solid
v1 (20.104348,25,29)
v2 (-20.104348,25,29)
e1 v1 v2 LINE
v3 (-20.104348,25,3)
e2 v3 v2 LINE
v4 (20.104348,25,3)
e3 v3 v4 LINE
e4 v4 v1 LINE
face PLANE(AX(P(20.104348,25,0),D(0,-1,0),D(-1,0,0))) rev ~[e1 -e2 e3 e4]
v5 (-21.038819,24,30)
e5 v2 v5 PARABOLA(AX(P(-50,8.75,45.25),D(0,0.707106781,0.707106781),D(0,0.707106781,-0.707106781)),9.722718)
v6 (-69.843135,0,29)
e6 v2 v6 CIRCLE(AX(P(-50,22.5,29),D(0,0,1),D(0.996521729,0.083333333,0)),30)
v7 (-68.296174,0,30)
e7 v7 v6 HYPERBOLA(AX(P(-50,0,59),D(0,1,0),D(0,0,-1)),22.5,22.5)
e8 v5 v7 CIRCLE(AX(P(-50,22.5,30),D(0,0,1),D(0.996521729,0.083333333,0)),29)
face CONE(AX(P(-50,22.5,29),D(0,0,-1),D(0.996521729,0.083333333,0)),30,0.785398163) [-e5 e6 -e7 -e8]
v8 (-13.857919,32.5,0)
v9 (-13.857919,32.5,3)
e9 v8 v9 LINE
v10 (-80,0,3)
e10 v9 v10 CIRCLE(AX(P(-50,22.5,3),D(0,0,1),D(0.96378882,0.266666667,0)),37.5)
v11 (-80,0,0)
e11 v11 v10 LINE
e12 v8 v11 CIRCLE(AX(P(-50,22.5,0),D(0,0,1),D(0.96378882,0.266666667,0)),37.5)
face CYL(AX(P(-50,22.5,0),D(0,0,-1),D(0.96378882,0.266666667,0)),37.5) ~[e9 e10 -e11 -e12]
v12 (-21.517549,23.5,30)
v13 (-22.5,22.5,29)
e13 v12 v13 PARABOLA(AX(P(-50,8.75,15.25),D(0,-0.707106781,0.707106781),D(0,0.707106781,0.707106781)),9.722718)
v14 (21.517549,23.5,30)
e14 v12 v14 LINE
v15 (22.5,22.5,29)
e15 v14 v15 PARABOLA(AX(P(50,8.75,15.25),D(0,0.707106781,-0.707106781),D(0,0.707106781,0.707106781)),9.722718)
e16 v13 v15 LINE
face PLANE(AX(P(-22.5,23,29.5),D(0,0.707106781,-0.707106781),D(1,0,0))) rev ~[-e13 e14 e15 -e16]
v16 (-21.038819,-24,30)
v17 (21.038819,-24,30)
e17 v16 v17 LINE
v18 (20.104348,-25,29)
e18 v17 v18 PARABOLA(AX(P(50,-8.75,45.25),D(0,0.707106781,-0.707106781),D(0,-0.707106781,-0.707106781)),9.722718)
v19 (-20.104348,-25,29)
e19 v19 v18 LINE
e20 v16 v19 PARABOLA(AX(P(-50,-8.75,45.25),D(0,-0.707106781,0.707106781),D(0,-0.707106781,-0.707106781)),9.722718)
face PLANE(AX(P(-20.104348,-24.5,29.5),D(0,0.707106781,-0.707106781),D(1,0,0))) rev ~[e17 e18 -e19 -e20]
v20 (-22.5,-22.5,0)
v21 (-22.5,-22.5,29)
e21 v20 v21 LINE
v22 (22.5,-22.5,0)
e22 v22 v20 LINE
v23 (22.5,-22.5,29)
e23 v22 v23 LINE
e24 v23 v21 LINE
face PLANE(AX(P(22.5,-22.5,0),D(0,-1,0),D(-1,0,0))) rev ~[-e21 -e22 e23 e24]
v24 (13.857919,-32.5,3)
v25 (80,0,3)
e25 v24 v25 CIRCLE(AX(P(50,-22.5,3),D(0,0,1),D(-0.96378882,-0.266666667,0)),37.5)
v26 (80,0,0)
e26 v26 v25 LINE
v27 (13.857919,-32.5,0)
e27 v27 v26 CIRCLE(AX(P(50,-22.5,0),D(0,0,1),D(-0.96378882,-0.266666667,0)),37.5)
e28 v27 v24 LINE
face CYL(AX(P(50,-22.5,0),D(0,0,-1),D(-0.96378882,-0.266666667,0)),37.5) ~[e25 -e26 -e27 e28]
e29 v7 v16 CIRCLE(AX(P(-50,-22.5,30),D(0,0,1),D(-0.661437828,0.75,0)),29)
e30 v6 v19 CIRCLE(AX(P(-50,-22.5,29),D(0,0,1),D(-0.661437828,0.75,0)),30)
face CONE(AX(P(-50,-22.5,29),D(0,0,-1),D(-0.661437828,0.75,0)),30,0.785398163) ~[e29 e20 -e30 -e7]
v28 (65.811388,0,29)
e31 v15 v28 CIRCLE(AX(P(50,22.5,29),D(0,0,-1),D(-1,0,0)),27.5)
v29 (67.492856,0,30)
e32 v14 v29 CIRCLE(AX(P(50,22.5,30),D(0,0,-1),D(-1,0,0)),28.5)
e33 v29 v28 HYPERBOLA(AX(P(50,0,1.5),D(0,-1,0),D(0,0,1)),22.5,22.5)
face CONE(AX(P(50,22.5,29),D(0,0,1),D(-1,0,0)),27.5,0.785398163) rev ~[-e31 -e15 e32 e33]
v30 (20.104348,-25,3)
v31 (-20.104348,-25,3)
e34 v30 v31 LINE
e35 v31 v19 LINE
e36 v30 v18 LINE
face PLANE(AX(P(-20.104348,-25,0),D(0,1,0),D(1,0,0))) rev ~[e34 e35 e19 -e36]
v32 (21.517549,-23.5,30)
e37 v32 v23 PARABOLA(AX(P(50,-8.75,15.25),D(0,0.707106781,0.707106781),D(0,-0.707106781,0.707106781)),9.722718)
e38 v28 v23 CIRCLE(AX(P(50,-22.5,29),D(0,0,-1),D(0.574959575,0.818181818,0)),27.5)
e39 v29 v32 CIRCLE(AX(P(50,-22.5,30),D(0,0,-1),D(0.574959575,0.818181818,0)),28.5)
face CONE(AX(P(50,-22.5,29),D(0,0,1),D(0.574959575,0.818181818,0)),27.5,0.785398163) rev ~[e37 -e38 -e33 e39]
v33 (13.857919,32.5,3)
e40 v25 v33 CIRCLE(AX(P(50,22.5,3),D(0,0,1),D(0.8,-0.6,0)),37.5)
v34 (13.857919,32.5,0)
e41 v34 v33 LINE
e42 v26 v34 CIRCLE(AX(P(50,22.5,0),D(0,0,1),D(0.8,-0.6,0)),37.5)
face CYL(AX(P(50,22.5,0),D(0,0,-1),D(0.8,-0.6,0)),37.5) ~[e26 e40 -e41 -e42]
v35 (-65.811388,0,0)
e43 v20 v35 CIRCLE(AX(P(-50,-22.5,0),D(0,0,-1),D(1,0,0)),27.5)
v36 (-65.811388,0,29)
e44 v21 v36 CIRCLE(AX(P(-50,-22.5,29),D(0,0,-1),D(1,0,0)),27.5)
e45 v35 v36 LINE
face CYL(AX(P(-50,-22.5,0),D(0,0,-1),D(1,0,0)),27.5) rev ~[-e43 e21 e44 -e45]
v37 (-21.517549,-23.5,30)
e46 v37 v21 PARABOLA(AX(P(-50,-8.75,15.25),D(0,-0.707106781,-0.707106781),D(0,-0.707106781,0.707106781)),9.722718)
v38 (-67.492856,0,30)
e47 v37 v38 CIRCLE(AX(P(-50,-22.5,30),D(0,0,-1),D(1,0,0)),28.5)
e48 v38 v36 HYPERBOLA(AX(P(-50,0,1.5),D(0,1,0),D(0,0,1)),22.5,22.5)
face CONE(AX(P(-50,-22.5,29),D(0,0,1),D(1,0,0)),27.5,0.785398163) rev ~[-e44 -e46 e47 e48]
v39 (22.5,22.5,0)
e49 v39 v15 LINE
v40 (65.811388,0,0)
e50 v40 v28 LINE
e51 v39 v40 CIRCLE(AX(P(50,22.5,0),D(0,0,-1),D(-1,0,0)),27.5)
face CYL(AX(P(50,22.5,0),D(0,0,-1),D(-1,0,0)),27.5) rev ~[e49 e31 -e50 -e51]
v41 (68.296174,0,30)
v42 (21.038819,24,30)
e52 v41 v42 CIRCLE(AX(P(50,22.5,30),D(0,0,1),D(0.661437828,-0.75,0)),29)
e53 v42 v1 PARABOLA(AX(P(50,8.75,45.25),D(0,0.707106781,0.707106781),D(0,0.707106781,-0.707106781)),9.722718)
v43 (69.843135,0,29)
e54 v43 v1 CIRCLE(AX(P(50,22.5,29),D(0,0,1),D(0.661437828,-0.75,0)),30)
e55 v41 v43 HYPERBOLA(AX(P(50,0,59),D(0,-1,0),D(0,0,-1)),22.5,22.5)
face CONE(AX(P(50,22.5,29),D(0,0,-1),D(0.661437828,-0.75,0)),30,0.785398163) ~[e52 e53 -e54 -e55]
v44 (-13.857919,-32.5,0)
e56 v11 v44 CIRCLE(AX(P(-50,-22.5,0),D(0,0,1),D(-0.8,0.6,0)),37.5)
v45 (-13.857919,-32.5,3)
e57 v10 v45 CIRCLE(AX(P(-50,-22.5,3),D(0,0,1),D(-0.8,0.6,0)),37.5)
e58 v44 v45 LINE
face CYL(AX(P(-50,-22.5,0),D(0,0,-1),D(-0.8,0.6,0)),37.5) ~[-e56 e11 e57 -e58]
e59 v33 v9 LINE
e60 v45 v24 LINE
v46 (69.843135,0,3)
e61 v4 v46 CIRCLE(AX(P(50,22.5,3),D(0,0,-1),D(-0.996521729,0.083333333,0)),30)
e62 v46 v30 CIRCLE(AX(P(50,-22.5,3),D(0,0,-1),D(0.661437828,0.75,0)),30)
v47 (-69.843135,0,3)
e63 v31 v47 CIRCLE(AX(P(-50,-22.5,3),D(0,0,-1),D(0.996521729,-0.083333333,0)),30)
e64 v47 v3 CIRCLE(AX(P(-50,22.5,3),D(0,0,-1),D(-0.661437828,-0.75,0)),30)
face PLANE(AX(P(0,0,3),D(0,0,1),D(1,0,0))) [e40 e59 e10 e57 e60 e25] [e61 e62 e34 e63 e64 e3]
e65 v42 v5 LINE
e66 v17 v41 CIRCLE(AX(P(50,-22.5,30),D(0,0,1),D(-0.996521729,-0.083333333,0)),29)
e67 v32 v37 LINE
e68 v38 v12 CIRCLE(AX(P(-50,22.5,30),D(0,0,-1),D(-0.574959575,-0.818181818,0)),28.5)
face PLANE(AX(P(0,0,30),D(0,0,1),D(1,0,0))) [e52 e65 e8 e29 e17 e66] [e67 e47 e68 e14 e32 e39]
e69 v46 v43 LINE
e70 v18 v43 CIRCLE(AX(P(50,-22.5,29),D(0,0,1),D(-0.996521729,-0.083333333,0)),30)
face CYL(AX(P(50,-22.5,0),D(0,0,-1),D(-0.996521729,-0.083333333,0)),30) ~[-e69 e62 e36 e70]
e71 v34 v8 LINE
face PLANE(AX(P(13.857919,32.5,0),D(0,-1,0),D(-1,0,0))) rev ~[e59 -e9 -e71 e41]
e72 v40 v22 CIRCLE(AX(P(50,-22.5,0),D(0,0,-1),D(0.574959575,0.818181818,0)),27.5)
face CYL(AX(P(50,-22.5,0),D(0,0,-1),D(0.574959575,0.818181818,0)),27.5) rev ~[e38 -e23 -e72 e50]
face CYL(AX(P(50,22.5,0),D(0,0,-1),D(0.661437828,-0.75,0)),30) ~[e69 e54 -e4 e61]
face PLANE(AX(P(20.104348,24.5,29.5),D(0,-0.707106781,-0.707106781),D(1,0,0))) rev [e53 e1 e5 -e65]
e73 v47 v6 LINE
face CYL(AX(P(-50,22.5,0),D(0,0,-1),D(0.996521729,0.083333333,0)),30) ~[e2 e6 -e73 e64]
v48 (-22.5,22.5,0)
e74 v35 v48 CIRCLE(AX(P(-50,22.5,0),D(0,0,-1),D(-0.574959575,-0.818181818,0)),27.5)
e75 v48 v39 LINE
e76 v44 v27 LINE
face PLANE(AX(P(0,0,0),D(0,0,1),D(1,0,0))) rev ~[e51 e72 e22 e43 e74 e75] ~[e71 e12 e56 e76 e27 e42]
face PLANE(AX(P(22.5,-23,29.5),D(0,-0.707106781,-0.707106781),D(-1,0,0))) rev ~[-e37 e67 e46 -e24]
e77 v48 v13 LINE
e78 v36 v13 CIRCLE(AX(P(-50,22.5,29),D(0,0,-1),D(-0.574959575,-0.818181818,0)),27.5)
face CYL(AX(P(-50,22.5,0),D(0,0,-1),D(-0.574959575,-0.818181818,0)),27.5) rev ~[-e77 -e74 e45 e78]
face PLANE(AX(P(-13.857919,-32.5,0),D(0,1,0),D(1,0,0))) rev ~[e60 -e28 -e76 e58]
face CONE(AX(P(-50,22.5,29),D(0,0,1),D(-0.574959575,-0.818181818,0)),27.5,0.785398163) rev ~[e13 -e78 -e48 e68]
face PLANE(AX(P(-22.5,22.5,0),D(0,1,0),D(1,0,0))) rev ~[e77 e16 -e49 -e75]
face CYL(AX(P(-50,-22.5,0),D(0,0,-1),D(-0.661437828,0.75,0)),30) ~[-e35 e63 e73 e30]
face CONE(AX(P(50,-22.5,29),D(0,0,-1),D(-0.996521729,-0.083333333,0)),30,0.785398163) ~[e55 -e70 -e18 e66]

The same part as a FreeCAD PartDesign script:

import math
import FreeCAD as App
import Part
import Sketcher

V = App.Vector


def edges_at(feature, points):
    """Names of the edges that pass closest to the given points."""
    edges = feature.Shape.Edges
    near = lambda p: min(range(len(edges)), key=lambda i: edges[i].distToShape(Part.Vertex(*p))[0])
    return sorted({f"Edge{near(p) + 1}" for p in points})

doc = App.newDocument("Part")
body = doc.addObject("PartDesign::Body", "Body")

# Sketch on XY plane
sketch1 = body.newObject("Sketcher::SketchObject", "Sketch")
sketch1.AttachmentSupport = (doc.getObject("XY_Plane"), [""])
sketch1.MapMode = "FlatFace"
sketch1.addGeometry(Part.LineSegment(V(13.857919, 32.5, 0), V(-13.857919, 32.5, 0)), False)
sketch1.addGeometry(Part.ArcOfCircle(Part.Circle(V(-50, 22.5, 0), V(0, 0, 1), 37.5), math.radians(15.46601), math.radians(216.869898)), False)
sketch1.addGeometry(Part.ArcOfCircle(Part.Circle(V(-50, -22.5, 0), V(0, 0, 1), 37.5), math.radians(143.130102), math.radians(344.53399)), False)
sketch1.addGeometry(Part.LineSegment(V(-13.857919, -32.5, 0), V(13.857919, -32.5, 0)), False)
sketch1.addGeometry(Part.ArcOfCircle(Part.Circle(V(50, -22.5, 0), V(0, 0, 1), 37.5), math.radians(-164.53399), math.radians(36.869898)), False)
sketch1.addGeometry(Part.ArcOfCircle(Part.Circle(V(50, 22.5, 0), V(0, 0, 1), 37.5), math.radians(-36.869898), math.radians(164.53399)), False)
sketch1.addGeometry(Part.ArcOfCircle(Part.Circle(V(-50, -22.5, 0), V(0, 0, 1), 30), math.radians(131.409622), math.radians(355.219808)), False)
sketch1.addGeometry(Part.ArcOfCircle(Part.Circle(V(-50, 22.5, 0), V(0, 0, 1), 30), math.radians(4.780192), math.radians(228.590378)), False)
sketch1.addGeometry(Part.LineSegment(V(-20.104348, 25, 0), V(20.104348, 25, 0)), False)
sketch1.addGeometry(Part.ArcOfCircle(Part.Circle(V(50, 22.5, 0), V(0, 0, 1), 30), math.radians(-48.590378), math.radians(175.219808)), False)
sketch1.addGeometry(Part.ArcOfCircle(Part.Circle(V(50, -22.5, 0), V(0, 0, 1), 30), math.radians(-175.219808), math.radians(48.590378)), False)
sketch1.addGeometry(Part.LineSegment(V(20.104348, -25, 0), V(-20.104348, -25, 0)), False)
sketch1.addConstraint(Sketcher.Constraint("Coincident", 0, 2, 1, 1))
sketch1.addConstraint(Sketcher.Constraint("Coincident", 1, 2, 2, 1))
sketch1.addConstraint(Sketcher.Constraint("Coincident", 2, 2, 3, 1))
sketch1.addConstraint(Sketcher.Constraint("Coincident", 3, 2, 4, 1))
sketch1.addConstraint(Sketcher.Constraint("Coincident", 4, 2, 5, 1))
sketch1.addConstraint(Sketcher.Constraint("Coincident", 5, 2, 0, 1))
sketch1.addConstraint(Sketcher.Constraint("Coincident", 6, 1, 7, 2))
sketch1.addConstraint(Sketcher.Constraint("Coincident", 7, 1, 8, 1))
sketch1.addConstraint(Sketcher.Constraint("Coincident", 8, 2, 9, 2))
sketch1.addConstraint(Sketcher.Constraint("Coincident", 9, 1, 10, 2))
sketch1.addConstraint(Sketcher.Constraint("Coincident", 10, 1, 11, 1))
sketch1.addConstraint(Sketcher.Constraint("Coincident", 11, 2, 6, 2))
sketch1.addConstraint(Sketcher.Constraint("Horizontal", 0))
sketch1.addConstraint(Sketcher.Constraint("Horizontal", 3))
sketch1.addConstraint(Sketcher.Constraint("Horizontal", 8))
sketch1.addConstraint(Sketcher.Constraint("Horizontal", 11))
sketch1.addConstraint(Sketcher.Constraint("Coincident", 6, 3, 2, 3))
sketch1.addConstraint(Sketcher.Constraint("Coincident", 7, 3, 1, 3))
sketch1.addConstraint(Sketcher.Constraint("Coincident", 9, 3, 5, 3))
sketch1.addConstraint(Sketcher.Constraint("Coincident", 10, 3, 4, 3))
sketch1.addConstraint(Sketcher.Constraint("Equal", 1, 2))
sketch1.addConstraint(Sketcher.Constraint("Equal", 2, 4))
sketch1.addConstraint(Sketcher.Constraint("Equal", 4, 5))
sketch1.addConstraint(Sketcher.Constraint("Equal", 6, 7))
sketch1.addConstraint(Sketcher.Constraint("Equal", 7, 9))
sketch1.addConstraint(Sketcher.Constraint("Equal", 9, 10))
sketch1.addConstraint(Sketcher.Constraint("Symmetric", 1, 3, 4, 3, -1, 1))
sketch1.addConstraint(Sketcher.Constraint("Symmetric", 2, 3, 5, 3, -1, 1))
sketch1.addConstraint(Sketcher.Constraint("Symmetric", 2, 3, 4, 3, -2))
sketch1.addConstraint(Sketcher.Constraint("Vertical", 0, 2, 2, 2))
sketch1.addConstraint(Sketcher.Constraint("Vertical", 8, 2, 10, 1))
sketch1.addConstraint(Sketcher.Constraint("Radius", 6, 30.0))
sketch1.addConstraint(Sketcher.Constraint("Radius", 1, 37.5))
sketch1.addConstraint(Sketcher.Constraint("DistanceX", 1, 3, -1, 1, 50.0))
sketch1.addConstraint(Sketcher.Constraint("DistanceX", 1, 2, -1, 1, 80.0))
sketch1.addConstraint(Sketcher.Constraint("DistanceY", -1, 1, 7, 1, 25.0))
sketch1.addConstraint(Sketcher.Constraint("DistanceY", 1, 3, 0, 2, 10.0))
pad1 = body.newObject("PartDesign::Pad", "Pad")
pad1.Profile = sketch1
pad1.Length = 3

# Sketch on XY plane
sketch2 = body.newObject("Sketcher::SketchObject", "Sketch001")
sketch2.AttachmentSupport = (doc.getObject("XY_Plane"), [""])
sketch2.MapMode = "FlatFace"
sketch2.addGeometry(Part.LineSegment(V(20.104348, 25, 0), V(-20.104348, 25, 0)), False)
sketch2.addGeometry(Part.ArcOfCircle(Part.Circle(V(-50, 22.5, 0), V(0, 0, 1), 30), math.radians(4.780192), math.radians(228.590378)), False)
sketch2.addGeometry(Part.ArcOfCircle(Part.Circle(V(-50, -22.5, 0), V(0, 0, 1), 30), math.radians(131.409622), math.radians(355.219808)), False)
sketch2.addGeometry(Part.LineSegment(V(-20.104348, -25, 0), V(20.104348, -25, 0)), False)
sketch2.addGeometry(Part.ArcOfCircle(Part.Circle(V(50, -22.5, 0), V(0, 0, 1), 30), math.radians(-175.219808), math.radians(48.590378)), False)
sketch2.addGeometry(Part.ArcOfCircle(Part.Circle(V(50, 22.5, 0), V(0, 0, 1), 30), math.radians(-48.590378), math.radians(175.219808)), False)
sketch2.addGeometry(Part.LineSegment(V(22.5, -22.5, 0), V(-22.5, -22.5, 0)), False)
sketch2.addGeometry(Part.ArcOfCircle(Part.Circle(V(-50, -22.5, 0), V(0, 0, 1), 27.5), math.radians(125.096801), math.radians(360)), False)
sketch2.addGeometry(Part.ArcOfCircle(Part.Circle(V(-50, 22.5, 0), V(0, 0, 1), 27.5), math.radians(0), math.radians(234.903199)), False)
sketch2.addGeometry(Part.LineSegment(V(-22.5, 22.5, 0), V(22.5, 22.5, 0)), False)
sketch2.addGeometry(Part.ArcOfCircle(Part.Circle(V(50, 22.5, 0), V(0, 0, 1), 27.5), math.radians(-54.903199), math.radians(180)), False)
sketch2.addGeometry(Part.ArcOfCircle(Part.Circle(V(50, -22.5, 0), V(0, 0, 1), 27.5), math.radians(180), math.radians(414.903199)), False)
sketch2.addConstraint(Sketcher.Constraint("Coincident", 0, 2, 1, 1))
sketch2.addConstraint(Sketcher.Constraint("Coincident", 1, 2, 2, 1))
sketch2.addConstraint(Sketcher.Constraint("Coincident", 2, 2, 3, 1))
sketch2.addConstraint(Sketcher.Constraint("Coincident", 3, 2, 4, 1))
sketch2.addConstraint(Sketcher.Constraint("Coincident", 4, 2, 5, 1))
sketch2.addConstraint(Sketcher.Constraint("Coincident", 5, 2, 0, 1))
sketch2.addConstraint(Sketcher.Constraint("Coincident", 6, 2, 7, 2))
sketch2.addConstraint(Sketcher.Constraint("Coincident", 7, 1, 8, 2))
sketch2.addConstraint(Sketcher.Constraint("Coincident", 8, 1, 9, 1))
sketch2.addConstraint(Sketcher.Constraint("Coincident", 9, 2, 10, 2))
sketch2.addConstraint(Sketcher.Constraint("Coincident", 10, 1, 11, 2))
sketch2.addConstraint(Sketcher.Constraint("Coincident", 11, 1, 6, 1))
sketch2.addConstraint(Sketcher.Constraint("Horizontal", 0))
sketch2.addConstraint(Sketcher.Constraint("Horizontal", 3))
sketch2.addConstraint(Sketcher.Constraint("Horizontal", 6))
sketch2.addConstraint(Sketcher.Constraint("Horizontal", 9))
sketch2.addConstraint(Sketcher.Constraint("Coincident", 7, 3, 2, 3))
sketch2.addConstraint(Sketcher.Constraint("Coincident", 8, 3, 1, 3))
sketch2.addConstraint(Sketcher.Constraint("Coincident", 10, 3, 5, 3))
sketch2.addConstraint(Sketcher.Constraint("Coincident", 11, 3, 4, 3))
sketch2.addConstraint(Sketcher.Constraint("Equal", 1, 2))
sketch2.addConstraint(Sketcher.Constraint("Equal", 2, 4))
sketch2.addConstraint(Sketcher.Constraint("Equal", 4, 5))
sketch2.addConstraint(Sketcher.Constraint("Equal", 7, 8))
sketch2.addConstraint(Sketcher.Constraint("Equal", 8, 10))
sketch2.addConstraint(Sketcher.Constraint("Equal", 10, 11))
sketch2.addConstraint(Sketcher.Constraint("Symmetric", 1, 3, 4, 3, -1, 1))
sketch2.addConstraint(Sketcher.Constraint("Symmetric", 2, 3, 5, 3, -1, 1))
sketch2.addConstraint(Sketcher.Constraint("Symmetric", 2, 3, 4, 3, -2))
sketch2.addConstraint(Sketcher.Constraint("Horizontal", 11, 3, 6, 2))
sketch2.addConstraint(Sketcher.Constraint("Horizontal", 10, 3, 8, 1))
sketch2.addConstraint(Sketcher.Constraint("Vertical", 0, 2, 2, 2))
sketch2.addConstraint(Sketcher.Constraint("Radius", 1, 30.0))
sketch2.addConstraint(Sketcher.Constraint("Radius", 7, 27.5))
sketch2.addConstraint(Sketcher.Constraint("DistanceX", 6, 2, 6, 1, 45.0))
sketch2.addConstraint(Sketcher.Constraint("DistanceY", -1, 1, 0, 2, 25.0))
sketch2.addConstraint(Sketcher.Constraint("DistanceY", 2, 3, 1, 3, 45.0))
pad2 = body.newObject("PartDesign::Pad", "Pad001")
pad2.Profile = sketch2
pad2.Length = 30
doc.recompute()

chamfer = body.newObject("PartDesign::Chamfer", "Chamfer")
chamfer.Base = (pad2, edges_at(pad2, [
    (-63.473, -49.305, 30),
    (0, -25, 30),
    (63.473, -49.305, 30),
    (63.473, 49.305, 30),
    (0, 25, 30),
    (-63.473, 49.305, 30),
    (-62.677, 46.904, 30),
    (-62.677, -46.904, 30),
    (0, -22.5, 30),
    (0, 22.5, 30),
    (62.677, 46.904, 30),
    (62.677, -46.904, 30),
]))
chamfer.Size = 1

doc.recompute()
